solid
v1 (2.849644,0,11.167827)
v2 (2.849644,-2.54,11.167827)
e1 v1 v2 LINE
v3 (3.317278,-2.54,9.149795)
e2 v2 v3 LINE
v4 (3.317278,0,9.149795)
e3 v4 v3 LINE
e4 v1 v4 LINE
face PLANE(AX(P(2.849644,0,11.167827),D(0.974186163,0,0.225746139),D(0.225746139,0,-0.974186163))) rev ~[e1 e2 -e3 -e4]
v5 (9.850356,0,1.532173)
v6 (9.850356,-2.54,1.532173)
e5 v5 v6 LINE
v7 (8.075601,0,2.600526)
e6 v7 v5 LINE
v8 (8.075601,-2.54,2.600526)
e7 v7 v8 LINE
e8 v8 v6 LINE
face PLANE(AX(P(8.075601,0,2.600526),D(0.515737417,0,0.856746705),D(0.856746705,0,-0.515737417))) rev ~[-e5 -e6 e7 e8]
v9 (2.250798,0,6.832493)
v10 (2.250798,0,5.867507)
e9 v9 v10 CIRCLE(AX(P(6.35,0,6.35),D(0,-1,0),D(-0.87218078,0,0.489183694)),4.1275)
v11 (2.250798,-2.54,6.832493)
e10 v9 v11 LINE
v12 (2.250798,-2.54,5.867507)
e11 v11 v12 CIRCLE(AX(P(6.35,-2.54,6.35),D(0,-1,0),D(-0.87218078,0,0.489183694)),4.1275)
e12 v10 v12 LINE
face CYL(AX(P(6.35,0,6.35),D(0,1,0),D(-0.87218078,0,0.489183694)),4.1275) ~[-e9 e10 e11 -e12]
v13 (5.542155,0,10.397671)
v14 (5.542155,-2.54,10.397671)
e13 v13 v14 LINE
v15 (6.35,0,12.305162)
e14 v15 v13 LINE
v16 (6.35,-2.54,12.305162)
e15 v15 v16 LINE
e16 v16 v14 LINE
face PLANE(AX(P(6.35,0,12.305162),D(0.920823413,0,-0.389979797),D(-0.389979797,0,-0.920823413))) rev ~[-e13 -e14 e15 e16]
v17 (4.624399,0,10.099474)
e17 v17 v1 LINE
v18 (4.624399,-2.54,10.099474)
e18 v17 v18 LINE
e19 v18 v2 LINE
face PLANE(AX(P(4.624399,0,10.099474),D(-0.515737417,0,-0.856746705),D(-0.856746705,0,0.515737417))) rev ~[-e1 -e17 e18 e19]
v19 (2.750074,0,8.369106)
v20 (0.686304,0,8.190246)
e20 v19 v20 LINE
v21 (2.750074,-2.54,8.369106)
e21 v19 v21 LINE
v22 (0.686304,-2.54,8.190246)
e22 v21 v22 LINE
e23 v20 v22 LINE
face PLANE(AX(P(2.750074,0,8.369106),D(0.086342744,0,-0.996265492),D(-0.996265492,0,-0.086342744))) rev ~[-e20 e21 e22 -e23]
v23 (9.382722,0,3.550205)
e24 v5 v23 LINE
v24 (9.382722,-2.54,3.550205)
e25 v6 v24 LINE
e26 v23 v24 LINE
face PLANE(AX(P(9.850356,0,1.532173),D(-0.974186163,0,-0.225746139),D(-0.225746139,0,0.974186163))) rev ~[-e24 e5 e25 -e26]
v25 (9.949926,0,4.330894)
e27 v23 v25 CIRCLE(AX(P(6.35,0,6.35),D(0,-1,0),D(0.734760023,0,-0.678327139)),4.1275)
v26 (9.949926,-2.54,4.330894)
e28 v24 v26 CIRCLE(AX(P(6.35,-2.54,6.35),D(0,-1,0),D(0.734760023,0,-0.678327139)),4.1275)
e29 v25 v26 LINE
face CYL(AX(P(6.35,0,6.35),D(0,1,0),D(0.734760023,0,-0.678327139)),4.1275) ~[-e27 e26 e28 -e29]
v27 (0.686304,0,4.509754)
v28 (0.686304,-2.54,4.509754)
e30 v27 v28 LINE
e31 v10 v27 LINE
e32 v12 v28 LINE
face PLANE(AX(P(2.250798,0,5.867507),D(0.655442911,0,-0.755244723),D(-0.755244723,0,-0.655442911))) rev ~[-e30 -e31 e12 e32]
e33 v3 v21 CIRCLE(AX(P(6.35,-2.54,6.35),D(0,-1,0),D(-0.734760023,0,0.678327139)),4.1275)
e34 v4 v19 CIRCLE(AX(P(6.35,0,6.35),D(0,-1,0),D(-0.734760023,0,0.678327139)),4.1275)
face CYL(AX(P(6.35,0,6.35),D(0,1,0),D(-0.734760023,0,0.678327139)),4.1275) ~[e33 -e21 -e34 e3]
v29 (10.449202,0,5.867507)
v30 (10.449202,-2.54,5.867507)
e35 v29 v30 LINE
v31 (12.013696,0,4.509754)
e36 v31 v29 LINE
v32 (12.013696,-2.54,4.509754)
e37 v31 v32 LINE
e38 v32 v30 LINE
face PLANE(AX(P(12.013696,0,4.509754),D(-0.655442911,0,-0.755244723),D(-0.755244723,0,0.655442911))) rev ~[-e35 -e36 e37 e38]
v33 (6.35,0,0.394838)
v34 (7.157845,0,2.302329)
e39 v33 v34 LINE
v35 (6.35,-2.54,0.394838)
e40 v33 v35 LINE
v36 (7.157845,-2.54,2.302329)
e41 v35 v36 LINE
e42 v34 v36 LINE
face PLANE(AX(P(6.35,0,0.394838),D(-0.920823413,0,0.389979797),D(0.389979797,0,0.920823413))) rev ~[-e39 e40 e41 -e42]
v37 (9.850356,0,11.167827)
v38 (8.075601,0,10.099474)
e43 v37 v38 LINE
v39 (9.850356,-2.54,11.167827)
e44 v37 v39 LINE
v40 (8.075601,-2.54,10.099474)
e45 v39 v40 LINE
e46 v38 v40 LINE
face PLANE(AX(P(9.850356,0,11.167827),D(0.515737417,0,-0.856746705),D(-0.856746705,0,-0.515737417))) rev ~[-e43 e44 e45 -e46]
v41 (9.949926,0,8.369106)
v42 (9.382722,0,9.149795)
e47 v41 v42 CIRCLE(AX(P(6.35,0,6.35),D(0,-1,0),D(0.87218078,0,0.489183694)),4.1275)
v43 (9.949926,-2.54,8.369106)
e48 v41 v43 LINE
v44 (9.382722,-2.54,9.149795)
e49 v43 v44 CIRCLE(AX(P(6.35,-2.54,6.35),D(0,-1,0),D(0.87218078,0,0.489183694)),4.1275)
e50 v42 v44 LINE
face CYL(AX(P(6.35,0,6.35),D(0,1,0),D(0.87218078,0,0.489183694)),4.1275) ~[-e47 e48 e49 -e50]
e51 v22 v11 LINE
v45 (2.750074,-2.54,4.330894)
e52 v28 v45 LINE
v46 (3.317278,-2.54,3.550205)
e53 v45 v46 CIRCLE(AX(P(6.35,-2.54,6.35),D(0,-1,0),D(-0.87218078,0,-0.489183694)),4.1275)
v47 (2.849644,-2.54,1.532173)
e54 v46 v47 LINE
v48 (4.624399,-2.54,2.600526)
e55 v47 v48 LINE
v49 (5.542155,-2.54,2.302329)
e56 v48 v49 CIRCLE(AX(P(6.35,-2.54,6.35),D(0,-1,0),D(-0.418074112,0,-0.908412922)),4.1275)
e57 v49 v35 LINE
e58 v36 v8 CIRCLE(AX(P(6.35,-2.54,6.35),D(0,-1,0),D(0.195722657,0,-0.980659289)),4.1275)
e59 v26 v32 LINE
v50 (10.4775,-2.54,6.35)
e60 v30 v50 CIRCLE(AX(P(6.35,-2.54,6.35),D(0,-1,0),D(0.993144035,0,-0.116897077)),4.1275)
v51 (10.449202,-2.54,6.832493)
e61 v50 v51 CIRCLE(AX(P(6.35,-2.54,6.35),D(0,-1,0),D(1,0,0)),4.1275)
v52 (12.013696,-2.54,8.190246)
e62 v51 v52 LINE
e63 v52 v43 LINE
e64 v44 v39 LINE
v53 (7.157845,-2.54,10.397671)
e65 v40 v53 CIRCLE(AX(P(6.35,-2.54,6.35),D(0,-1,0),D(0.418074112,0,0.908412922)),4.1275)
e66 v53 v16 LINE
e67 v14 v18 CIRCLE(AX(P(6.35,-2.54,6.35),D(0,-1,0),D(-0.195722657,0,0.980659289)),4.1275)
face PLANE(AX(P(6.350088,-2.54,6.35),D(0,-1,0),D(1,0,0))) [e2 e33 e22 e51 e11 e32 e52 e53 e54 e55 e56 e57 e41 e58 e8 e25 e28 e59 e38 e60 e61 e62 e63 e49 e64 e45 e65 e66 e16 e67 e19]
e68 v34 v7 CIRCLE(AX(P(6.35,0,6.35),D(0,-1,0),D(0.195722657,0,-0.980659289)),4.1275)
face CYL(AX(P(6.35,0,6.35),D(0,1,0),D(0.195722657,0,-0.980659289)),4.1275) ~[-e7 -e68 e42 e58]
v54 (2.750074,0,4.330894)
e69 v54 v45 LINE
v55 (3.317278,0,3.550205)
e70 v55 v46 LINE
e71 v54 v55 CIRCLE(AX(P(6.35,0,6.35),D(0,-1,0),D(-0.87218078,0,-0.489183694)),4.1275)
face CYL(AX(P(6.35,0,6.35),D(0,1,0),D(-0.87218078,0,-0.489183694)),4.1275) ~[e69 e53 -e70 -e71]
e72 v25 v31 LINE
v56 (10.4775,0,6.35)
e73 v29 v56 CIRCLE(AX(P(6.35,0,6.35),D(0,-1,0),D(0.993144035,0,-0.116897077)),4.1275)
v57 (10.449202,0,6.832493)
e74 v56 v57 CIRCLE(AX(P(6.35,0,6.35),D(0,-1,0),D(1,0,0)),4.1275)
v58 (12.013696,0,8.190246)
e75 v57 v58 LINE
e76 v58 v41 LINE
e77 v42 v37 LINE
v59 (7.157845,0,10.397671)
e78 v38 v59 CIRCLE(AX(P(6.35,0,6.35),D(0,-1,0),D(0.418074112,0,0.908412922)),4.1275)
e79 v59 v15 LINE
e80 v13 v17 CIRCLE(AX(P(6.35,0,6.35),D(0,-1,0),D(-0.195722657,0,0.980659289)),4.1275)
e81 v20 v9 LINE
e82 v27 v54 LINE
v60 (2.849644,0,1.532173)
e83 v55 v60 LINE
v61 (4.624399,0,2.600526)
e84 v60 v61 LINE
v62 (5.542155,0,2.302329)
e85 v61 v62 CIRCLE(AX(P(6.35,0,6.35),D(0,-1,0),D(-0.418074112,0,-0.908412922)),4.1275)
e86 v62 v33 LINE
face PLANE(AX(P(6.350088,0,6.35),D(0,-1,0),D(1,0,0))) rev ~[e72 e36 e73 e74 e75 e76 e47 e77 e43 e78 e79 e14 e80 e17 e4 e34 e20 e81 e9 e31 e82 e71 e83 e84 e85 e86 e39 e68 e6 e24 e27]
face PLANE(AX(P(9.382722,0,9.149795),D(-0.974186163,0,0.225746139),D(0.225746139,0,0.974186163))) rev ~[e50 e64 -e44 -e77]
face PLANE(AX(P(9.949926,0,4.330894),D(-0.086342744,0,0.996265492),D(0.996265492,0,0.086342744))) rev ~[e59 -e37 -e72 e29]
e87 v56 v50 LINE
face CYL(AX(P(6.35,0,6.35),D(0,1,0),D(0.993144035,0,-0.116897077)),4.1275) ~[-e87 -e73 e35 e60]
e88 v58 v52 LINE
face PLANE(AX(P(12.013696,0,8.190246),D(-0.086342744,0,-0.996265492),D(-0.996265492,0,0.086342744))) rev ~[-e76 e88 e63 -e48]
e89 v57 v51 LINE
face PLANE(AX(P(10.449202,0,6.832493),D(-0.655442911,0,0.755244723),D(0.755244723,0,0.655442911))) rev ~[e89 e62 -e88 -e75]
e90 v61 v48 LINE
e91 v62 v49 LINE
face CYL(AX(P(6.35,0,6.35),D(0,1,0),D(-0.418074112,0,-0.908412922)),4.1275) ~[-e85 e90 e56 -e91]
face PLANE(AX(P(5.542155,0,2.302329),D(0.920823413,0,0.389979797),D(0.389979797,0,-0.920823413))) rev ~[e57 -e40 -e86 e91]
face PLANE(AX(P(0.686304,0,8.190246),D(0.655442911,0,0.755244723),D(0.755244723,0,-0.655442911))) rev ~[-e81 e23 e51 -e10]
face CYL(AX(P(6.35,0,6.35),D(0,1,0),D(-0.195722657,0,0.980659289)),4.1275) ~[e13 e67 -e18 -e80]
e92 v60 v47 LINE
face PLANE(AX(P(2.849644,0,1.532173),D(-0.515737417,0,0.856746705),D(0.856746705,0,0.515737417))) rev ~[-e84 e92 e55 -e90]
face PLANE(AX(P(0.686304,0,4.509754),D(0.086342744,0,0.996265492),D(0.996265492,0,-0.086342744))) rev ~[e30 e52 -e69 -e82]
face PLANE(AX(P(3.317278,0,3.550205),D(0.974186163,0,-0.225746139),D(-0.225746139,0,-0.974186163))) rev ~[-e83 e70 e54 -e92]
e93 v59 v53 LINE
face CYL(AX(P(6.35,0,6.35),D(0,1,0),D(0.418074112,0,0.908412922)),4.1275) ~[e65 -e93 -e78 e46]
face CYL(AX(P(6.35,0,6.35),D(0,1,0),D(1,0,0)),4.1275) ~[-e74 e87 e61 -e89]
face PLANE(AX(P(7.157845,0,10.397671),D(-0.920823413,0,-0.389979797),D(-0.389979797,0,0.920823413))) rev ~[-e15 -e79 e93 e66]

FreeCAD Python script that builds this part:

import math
import FreeCAD as App
import Part
import Sketcher
Q = App.Units.Quantity

doc = App.newDocument("Part")
body = doc.addObject("PartDesign::Body", "Body")

# Sketch on XZ plane
sketch1 = body.newObject("Sketcher::SketchObject", "Sketch")
sketch1.AttachmentSupport = (doc.getObject("XZ_Plane"), [""])
sketch1.MapMode = "FlatFace"
sketch1.addGeometry([
    Part.ArcOfCircle(Part.Circle(App.Vector(6.35, 6.35, 0), App.Vector(0, 0, 1), 4.1275), math.radians(-6.713058), math.radians(0)),  # 0
    Part.ArcOfCircle(Part.Circle(App.Vector(6.35, 6.35, 0), App.Vector(0, 0, 1), 4.1275), math.radians(0), math.radians(6.713058)),  # 1
    Part.LineSegment(App.Vector(10.449202, 6.832493, 0), App.Vector(12.013696, 8.190246, 0)),  # 2
    Part.LineSegment(App.Vector(12.013696, 8.190246, 0), App.Vector(9.949926, 8.369106, 0)),  # 3
    Part.ArcOfCircle(Part.Circle(App.Vector(6.35, 6.35, 0), App.Vector(0, 0, 1), 4.1275), math.radians(29.286942), math.radians(42.713058)),  # 4
    Part.LineSegment(App.Vector(9.382722, 9.149795, 0), App.Vector(9.850356, 11.167827, 0)),  # 5
    Part.LineSegment(App.Vector(9.850356, 11.167827, 0), App.Vector(8.075601, 10.099474, 0)),  # 6
    Part.ArcOfCircle(Part.Circle(App.Vector(6.35, 6.35, 0), App.Vector(0, 0, 1), 4.1275), math.radians(65.286942), math.radians(78.713058)),  # 7
    Part.LineSegment(App.Vector(7.157845, 10.397671, 0), App.Vector(6.35, 12.305162, 0)),  # 8
    Part.LineSegment(App.Vector(6.35, 12.305162, 0), App.Vector(5.542155, 10.397671, 0)),  # 9
    Part.ArcOfCircle(Part.Circle(App.Vector(6.35, 6.35, 0), App.Vector(0, 0, 1), 4.1275), math.radians(101.286942), math.radians(114.713058)),  # 10
    Part.LineSegment(App.Vector(4.624399, 10.099474, 0), App.Vector(2.849644, 11.167827, 0)),  # 11
    Part.LineSegment(App.Vector(2.849644, 11.167827, 0), App.Vector(3.317278, 9.149795, 0)),  # 12
    Part.ArcOfCircle(Part.Circle(App.Vector(6.35, 6.35, 0), App.Vector(0, 0, 1), 4.1275), math.radians(137.286942), math.radians(150.713058)),  # 13
    Part.LineSegment(App.Vector(2.750074, 8.369106, 0), App.Vector(0.686304, 8.190246, 0)),  # 14
    Part.LineSegment(App.Vector(0.686304, 8.190246, 0), App.Vector(2.250798, 6.832493, 0)),  # 15
    Part.ArcOfCircle(Part.Circle(App.Vector(6.35, 6.35, 0), App.Vector(0, 0, 1), 4.1275), math.radians(173.286942), math.radians(186.713058)),  # 16
    Part.LineSegment(App.Vector(2.250798, 5.867507, 0), App.Vector(0.686304, 4.509754, 0)),  # 17
    Part.LineSegment(App.Vector(0.686304, 4.509754, 0), App.Vector(2.750074, 4.330894, 0)),  # 18
    Part.ArcOfCircle(Part.Circle(App.Vector(6.35, 6.35, 0), App.Vector(0, 0, 1), 4.1275), math.radians(-150.713058), math.radians(-137.286942)),  # 19
    Part.LineSegment(App.Vector(3.317278, 3.550205, 0), App.Vector(2.849644, 1.532173, 0)),  # 20
    Part.LineSegment(App.Vector(2.849644, 1.532173, 0), App.Vector(4.624399, 2.600526, 0)),  # 21
    Part.ArcOfCircle(Part.Circle(App.Vector(6.35, 6.35, 0), App.Vector(0, 0, 1), 4.1275), math.radians(-114.713058), math.radians(-101.286942)),  # 22
    Part.LineSegment(App.Vector(5.542155, 2.302329, 0), App.Vector(6.35, 0.394838, 0)),  # 23
    Part.LineSegment(App.Vector(6.35, 0.394838, 0), App.Vector(7.157845, 2.302329, 0)),  # 24
    Part.ArcOfCircle(Part.Circle(App.Vector(6.35, 6.35, 0), App.Vector(0, 0, 1), 4.1275), math.radians(-78.713058), math.radians(-65.286942)),  # 25
    Part.LineSegment(App.Vector(8.075601, 2.600526, 0), App.Vector(9.850356, 1.532173, 0)),  # 26
    Part.LineSegment(App.Vector(9.850356, 1.532173, 0), App.Vector(9.382722, 3.550205, 0)),  # 27
    Part.ArcOfCircle(Part.Circle(App.Vector(6.35, 6.35, 0), App.Vector(0, 0, 1), 4.1275), math.radians(-42.713058), math.radians(-29.286942)),  # 28
    Part.LineSegment(App.Vector(9.949926, 4.330894, 0), App.Vector(12.013696, 4.509754, 0)),  # 29
    Part.LineSegment(App.Vector(12.013696, 4.509754, 0), App.Vector(10.449202, 5.867507, 0)),  # 30
], False)
sketch1.addConstraint([
    Sketcher.Constraint("Tangent", 0, 2, 1, 1),
    Sketcher.Constraint("Coincident", 1, 2, 2, 1),
    Sketcher.Constraint("Coincident", 2, 2, 3, 1),
    Sketcher.Constraint("Coincident", 3, 2, 4, 1),
    Sketcher.Constraint("Coincident", 4, 2, 5, 1),
    Sketcher.Constraint("Coincident", 5, 2, 6, 1),
    Sketcher.Constraint("Coincident", 6, 2, 7, 1),
    Sketcher.Constraint("Coincident", 7, 2, 8, 1),
    Sketcher.Constraint("Coincident", 8, 2, 9, 1),
    Sketcher.Constraint("Coincident", 9, 2, 10, 1),
    Sketcher.Constraint("Coincident", 10, 2, 11, 1),
    Sketcher.Constraint("Coincident", 11, 2, 12, 1),
    Sketcher.Constraint("Coincident", 12, 2, 13, 1),
    Sketcher.Constraint("Coincident", 13, 2, 14, 1),
    Sketcher.Constraint("Coincident", 14, 2, 15, 1),
    Sketcher.Constraint("Coincident", 15, 2, 16, 1),
    Sketcher.Constraint("Coincident", 16, 2, 17, 1),
    Sketcher.Constraint("Coincident", 17, 2, 18, 1),
    Sketcher.Constraint("Coincident", 18, 2, 19, 1),
    Sketcher.Constraint("Coincident", 19, 2, 20, 1),
    Sketcher.Constraint("Coincident", 20, 2, 21, 1),
    Sketcher.Constraint("Coincident", 21, 2, 22, 1),
    Sketcher.Constraint("Coincident", 22, 2, 23, 1),
    Sketcher.Constraint("Coincident", 23, 2, 24, 1),
    Sketcher.Constraint("Coincident", 24, 2, 25, 1),
    Sketcher.Constraint("Coincident", 25, 2, 26, 1),
    Sketcher.Constraint("Coincident", 26, 2, 27, 1),
    Sketcher.Constraint("Coincident", 27, 2, 28, 1),
    Sketcher.Constraint("Coincident", 28, 2, 29, 1),
    Sketcher.Constraint("Coincident", 29, 2, 30, 1),
    Sketcher.Constraint("Coincident", 30, 2, 0, 1),
    Sketcher.Constraint("Coincident", 4, 3, 0, 3),
    Sketcher.Constraint("Coincident", 7, 3, 0, 3),
    Sketcher.Constraint("Coincident", 10, 3, 0, 3),
    Sketcher.Constraint("Coincident", 13, 3, 0, 3),
    Sketcher.Constraint("Coincident", 16, 3, 0, 3),
    Sketcher.Constraint("Coincident", 19, 3, 0, 3),
    Sketcher.Constraint("Coincident", 22, 3, 0, 3),
    Sketcher.Constraint("Coincident", 25, 3, 0, 3),
    Sketcher.Constraint("Coincident", 28, 3, 0, 3),
    Sketcher.Constraint("Equal", 0, 1),
    Sketcher.Constraint("Equal", 1, 4),
    Sketcher.Constraint("Equal", 4, 7),
    Sketcher.Constraint("Equal", 7, 10),
    Sketcher.Constraint("Equal", 10, 13),
    Sketcher.Constraint("Equal", 13, 16),
    Sketcher.Constraint("Equal", 16, 19),
    Sketcher.Constraint("Equal", 19, 22),
    Sketcher.Constraint("Equal", 22, 25),
    Sketcher.Constraint("Equal", 25, 28),
    Sketcher.Constraint("Parallel", 2, 17),
    Sketcher.Constraint("Parallel", 3, 18),
    Sketcher.Constraint("Parallel", 5, 20),
    Sketcher.Constraint("Parallel", 6, 21),
    Sketcher.Constraint("Parallel", 8, 23),
    Sketcher.Constraint("Parallel", 9, 24),
    Sketcher.Constraint("Parallel", 11, 26),
    Sketcher.Constraint("Parallel", 12, 27),
    Sketcher.Constraint("Parallel", 14, 29),
    Sketcher.Constraint("Parallel", 15, 30),
    Sketcher.Constraint("Horizontal", 28, 3, 0, 2),
    Sketcher.Constraint("Horizontal", 7, 2, 9, 2),
    Sketcher.Constraint("Horizontal", 6, 2, 10, 2),
    Sketcher.Constraint("Horizontal", 5, 2, 11, 2),
    Sketcher.Constraint("Horizontal", 4, 2, 12, 2),
    Sketcher.Constraint("Horizontal", 3, 2, 13, 2),
    Sketcher.Constraint("Horizontal", 2, 2, 14, 2),
    Sketcher.Constraint("Horizontal", 1, 2, 15, 2),
    Sketcher.Constraint("Horizontal", 22, 2, 24, 2),
    Sketcher.Constraint("Horizontal", 21, 2, 25, 2),
    Sketcher.Constraint("Horizontal", 20, 2, 26, 2),
    Sketcher.Constraint("Horizontal", 18, 2, 28, 2),
    Sketcher.Constraint("Horizontal", 17, 2, 29, 2),
    Sketcher.Constraint("Vertical", 28, 3, 8, 2),
    Sketcher.Constraint("Vertical", 15, 2, 16, 2),
    Sketcher.Constraint("Vertical", 14, 2, 17, 2),
    Sketcher.Constraint("Vertical", 13, 2, 18, 2),
    Sketcher.Constraint("Vertical", 12, 2, 19, 2),
    Sketcher.Constraint("Vertical", 11, 2, 20, 2),
    Sketcher.Constraint("Vertical", 10, 2, 21, 2),
    Sketcher.Constraint("Vertical", 9, 2, 22, 2),
    Sketcher.Constraint("Equal", 2, 3),
    Sketcher.Constraint("Equal", 3, 5),
    Sketcher.Constraint("Equal", 5, 6),
    Sketcher.Constraint("Equal", 6, 8),
    Sketcher.Constraint("Radius", 0, Q("0.1625 in")),
    Sketcher.Constraint("DistanceX", -1, 1, 0, 3, Q("0.25 in")),
    Sketcher.Constraint("DistanceY", -1, 1, 0, 3, Q("0.25 in")),
    Sketcher.Constraint("DistanceX", -1, 1, 6, 2, Q("8.075601 mm")),
    Sketcher.Constraint("DistanceX", 4, 3, 1, 2, Q("4.099202 mm")),
    Sketcher.Constraint("DistanceX", 11, 2, 7, 2, Q("4.308202 mm")),
    Sketcher.Constraint("DistanceY", 16, 2, 13, 2, Q("2.501598 mm")),
    Sketcher.Constraint("DistanceX", -1, 1, 4, 2, Q("9.382722 mm")),
    Sketcher.Constraint("DistanceY", -1, 1, 7, 2, Q("10.397671 mm")),
])
pad1 = body.newObject("PartDesign::Pad", "Pad")
pad1.Profile = sketch1
pad1.Length = Q("0.1 in")

doc.recompute()
